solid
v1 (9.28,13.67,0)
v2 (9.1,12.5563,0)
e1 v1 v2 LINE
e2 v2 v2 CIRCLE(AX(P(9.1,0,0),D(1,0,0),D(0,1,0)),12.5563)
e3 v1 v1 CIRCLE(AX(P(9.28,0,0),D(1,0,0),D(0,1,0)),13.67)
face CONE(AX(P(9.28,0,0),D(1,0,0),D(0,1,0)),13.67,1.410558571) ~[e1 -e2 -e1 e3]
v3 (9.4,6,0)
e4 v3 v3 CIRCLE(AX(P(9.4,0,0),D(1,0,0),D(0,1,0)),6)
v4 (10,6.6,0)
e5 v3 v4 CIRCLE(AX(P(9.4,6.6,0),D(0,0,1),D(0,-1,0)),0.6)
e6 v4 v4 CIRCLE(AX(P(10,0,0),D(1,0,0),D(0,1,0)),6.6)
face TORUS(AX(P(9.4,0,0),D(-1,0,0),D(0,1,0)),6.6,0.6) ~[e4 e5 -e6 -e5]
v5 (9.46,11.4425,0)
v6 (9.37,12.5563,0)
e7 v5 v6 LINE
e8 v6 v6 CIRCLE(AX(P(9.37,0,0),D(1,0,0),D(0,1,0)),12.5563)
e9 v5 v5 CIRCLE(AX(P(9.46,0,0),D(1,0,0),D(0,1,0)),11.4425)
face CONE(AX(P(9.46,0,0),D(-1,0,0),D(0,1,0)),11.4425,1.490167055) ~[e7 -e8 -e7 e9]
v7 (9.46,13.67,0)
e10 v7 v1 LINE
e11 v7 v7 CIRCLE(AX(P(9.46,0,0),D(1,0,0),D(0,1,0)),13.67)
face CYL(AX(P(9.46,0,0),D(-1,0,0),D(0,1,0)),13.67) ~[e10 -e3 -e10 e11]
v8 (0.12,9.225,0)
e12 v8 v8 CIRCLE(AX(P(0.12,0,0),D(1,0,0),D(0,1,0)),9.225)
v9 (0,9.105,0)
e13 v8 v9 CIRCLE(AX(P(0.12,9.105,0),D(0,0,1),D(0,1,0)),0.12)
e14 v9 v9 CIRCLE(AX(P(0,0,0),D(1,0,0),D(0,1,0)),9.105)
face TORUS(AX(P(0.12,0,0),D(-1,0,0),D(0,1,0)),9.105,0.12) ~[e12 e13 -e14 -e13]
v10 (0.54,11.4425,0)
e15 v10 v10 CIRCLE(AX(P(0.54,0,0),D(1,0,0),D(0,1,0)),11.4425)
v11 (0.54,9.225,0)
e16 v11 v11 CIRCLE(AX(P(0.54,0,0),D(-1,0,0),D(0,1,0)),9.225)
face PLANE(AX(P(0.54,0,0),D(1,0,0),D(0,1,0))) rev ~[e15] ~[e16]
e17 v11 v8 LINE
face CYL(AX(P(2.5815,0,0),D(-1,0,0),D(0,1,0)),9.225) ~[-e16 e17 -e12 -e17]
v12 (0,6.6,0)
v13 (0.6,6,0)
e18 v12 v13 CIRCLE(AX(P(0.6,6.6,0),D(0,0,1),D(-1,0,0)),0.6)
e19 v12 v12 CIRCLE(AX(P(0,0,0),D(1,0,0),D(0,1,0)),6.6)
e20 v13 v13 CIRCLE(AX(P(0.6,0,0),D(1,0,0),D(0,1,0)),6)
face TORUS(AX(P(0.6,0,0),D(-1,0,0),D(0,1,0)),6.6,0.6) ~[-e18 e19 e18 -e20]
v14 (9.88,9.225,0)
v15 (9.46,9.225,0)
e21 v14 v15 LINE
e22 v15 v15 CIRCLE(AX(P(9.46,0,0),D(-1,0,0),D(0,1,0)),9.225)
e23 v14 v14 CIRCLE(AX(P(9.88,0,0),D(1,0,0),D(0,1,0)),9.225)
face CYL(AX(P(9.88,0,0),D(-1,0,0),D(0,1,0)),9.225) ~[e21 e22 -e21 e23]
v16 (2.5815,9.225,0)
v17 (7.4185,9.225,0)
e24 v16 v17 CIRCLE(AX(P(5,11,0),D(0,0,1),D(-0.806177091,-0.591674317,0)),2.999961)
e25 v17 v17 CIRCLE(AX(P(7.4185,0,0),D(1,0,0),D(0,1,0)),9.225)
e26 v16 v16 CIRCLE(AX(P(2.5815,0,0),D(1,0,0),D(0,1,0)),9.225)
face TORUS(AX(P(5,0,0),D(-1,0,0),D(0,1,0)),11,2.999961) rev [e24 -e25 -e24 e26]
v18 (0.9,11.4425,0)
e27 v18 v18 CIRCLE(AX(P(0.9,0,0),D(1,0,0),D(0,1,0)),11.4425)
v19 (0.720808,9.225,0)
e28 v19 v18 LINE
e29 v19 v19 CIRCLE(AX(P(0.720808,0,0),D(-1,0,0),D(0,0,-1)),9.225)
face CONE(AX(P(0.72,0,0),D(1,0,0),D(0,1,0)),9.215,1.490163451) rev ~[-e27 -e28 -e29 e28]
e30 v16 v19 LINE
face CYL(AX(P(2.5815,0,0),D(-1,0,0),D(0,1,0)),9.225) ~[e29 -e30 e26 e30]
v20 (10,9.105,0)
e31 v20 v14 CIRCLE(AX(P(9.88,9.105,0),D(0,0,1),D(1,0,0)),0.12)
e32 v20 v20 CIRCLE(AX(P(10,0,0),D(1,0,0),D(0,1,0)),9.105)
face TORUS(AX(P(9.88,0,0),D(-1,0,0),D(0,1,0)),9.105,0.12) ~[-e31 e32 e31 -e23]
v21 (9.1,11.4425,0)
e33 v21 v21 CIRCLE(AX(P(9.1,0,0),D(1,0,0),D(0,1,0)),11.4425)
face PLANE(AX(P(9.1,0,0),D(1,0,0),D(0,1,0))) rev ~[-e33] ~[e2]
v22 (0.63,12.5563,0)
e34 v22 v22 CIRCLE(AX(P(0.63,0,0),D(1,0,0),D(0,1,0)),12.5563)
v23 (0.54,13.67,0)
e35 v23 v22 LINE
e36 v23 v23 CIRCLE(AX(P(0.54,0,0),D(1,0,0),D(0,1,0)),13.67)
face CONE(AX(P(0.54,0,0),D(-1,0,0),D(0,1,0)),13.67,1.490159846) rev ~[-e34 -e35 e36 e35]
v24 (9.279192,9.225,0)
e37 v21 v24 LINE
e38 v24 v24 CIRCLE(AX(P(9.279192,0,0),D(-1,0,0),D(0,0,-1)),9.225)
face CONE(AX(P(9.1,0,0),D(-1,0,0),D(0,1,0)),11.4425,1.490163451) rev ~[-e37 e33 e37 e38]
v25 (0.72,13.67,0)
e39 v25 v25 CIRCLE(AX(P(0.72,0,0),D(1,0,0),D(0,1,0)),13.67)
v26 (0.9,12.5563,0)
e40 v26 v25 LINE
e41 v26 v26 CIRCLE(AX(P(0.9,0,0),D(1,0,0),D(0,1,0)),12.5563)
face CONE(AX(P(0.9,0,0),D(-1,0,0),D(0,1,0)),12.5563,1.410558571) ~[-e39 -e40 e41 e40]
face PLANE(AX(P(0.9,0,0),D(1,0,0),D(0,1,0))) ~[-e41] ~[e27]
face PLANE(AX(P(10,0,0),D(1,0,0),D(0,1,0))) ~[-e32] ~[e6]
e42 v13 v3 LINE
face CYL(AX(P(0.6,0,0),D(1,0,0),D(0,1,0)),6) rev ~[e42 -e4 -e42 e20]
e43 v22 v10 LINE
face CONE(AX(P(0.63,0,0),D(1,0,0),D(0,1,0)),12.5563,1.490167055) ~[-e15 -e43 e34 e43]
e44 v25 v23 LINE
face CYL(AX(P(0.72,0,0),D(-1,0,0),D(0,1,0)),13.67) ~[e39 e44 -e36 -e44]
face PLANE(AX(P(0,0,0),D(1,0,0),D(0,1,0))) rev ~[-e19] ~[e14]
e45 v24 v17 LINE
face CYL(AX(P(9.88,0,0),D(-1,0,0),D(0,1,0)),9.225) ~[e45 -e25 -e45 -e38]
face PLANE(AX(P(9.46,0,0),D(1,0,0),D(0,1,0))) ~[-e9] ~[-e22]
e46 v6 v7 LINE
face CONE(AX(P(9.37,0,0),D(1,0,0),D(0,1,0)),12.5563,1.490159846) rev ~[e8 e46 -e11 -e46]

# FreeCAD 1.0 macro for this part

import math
import FreeCAD as App
import Part
import Sketcher
from FreeCAD import Vector
Q = App.Units.Quantity

doc = App.newDocument("Part")
params = doc.addObject("Spreadsheet::Sheet", "Params")
for row, (alias, value) in enumerate([
    ("sketch1_radius", "3 mm"),
    ("sketch1_radius2", "0.6 mm"),
    ("sketch1_radius3", "0.12 mm"),
    ("sketch1_width", "8.8 mm"),
    ("revolution_angle", "360 deg"),
    ("sketch2_width", "0.18 mm"),
    ("revolution2_angle", "360 deg"),
    ("sketch3_width", "0.18 mm"),
    ("revolution3_angle", "360 deg"),
], start=1):
    params.set(f"A{row}", alias)
    params.set(f"B{row}", "=" + value)
    params.setAlias(f"B{row}", alias)

body = doc.addObject("PartDesign::Body", "Body")

# Sketch on XY plane
sketch1 = body.newObject("Sketcher::SketchObject", "Sketch")
sketch1.AttachmentSupport = (doc.getObject("XY_Plane"), [""])
sketch1.MapMode = "FlatFace"
sketch1.addGeometry(Part.ArcOfCircle(Part.Circle(Vector(0.12, 9.11, 0), Vector(0, 0, 1), 0.12), math.radians(90), math.radians(180)), False)
sketch1.addGeometry(Part.LineSegment(Vector(0, 9.11, 0), Vector(0, 6.6, 0)), False)
sketch1.addGeometry(Part.ArcOfCircle(Part.Circle(Vector(0.6, 6.6, 0), Vector(0, 0, 1), 0.6), math.radians(180), math.radians(270)), False)
sketch1.addGeometry(Part.LineSegment(Vector(0.6, 6, 0), Vector(9.4, 6, 0)), False)
sketch1.addGeometry(Part.ArcOfCircle(Part.Circle(Vector(9.4, 6.6, 0), Vector(0, 0, 1), 0.6), math.radians(-90), math.radians(0)), False)
sketch1.addGeometry(Part.LineSegment(Vector(10, 6.6, 0), Vector(10, 9.11, 0)), False)
sketch1.addGeometry(Part.ArcOfCircle(Part.Circle(Vector(9.88, 9.11, 0), Vector(0, 0, 1), 0.12), math.radians(0), math.radians(90)), False)
sketch1.addGeometry(Part.LineSegment(Vector(9.88, 9.22, 0), Vector(7.42, 9.22, 0)), False)
sketch1.addGeometry(Part.ArcOfCircle(Part.Circle(Vector(5, 11, 0), Vector(0, 0, 1), 3), math.radians(-144), math.radians(-36)), False)
sketch1.addGeometry(Part.LineSegment(Vector(2.58, 9.22, 0), Vector(0.12, 9.22, 0)), False)
sketch1.addConstraint(Sketcher.Constraint("Tangent", 0, 2, 1, 1))
sketch1.addConstraint(Sketcher.Constraint("Tangent", 1, 2, 2, 1))
sketch1.addConstraint(Sketcher.Constraint("Tangent", 2, 2, 3, 1))
sketch1.addConstraint(Sketcher.Constraint("Tangent", 3, 2, 4, 1))
sketch1.addConstraint(Sketcher.Constraint("Tangent", 4, 2, 5, 1))
sketch1.addConstraint(Sketcher.Constraint("Tangent", 5, 2, 6, 1))
sketch1.addConstraint(Sketcher.Constraint("Tangent", 6, 2, 7, 1))
sketch1.addConstraint(Sketcher.Constraint("Coincident", 7, 2, 8, 2))
sketch1.addConstraint(Sketcher.Constraint("Coincident", 8, 1, 9, 1))
sketch1.addConstraint(Sketcher.Constraint("Tangent", 9, 2, 0, 1))
sketch1.addConstraint(Sketcher.Constraint("Vertical", 1))
sketch1.addConstraint(Sketcher.Constraint("Horizontal", 3))
sketch1.addConstraint(Sketcher.Constraint("Vertical", 5))
sketch1.addConstraint(Sketcher.Constraint("Horizontal", 7))
sketch1.addConstraint(Sketcher.Constraint("Horizontal", 9))
sketch1.addConstraint(Sketcher.Constraint("Equal", 2, 4))
sketch1.addConstraint(Sketcher.Constraint("Equal", 0, 6))
sketch1.addConstraint(Sketcher.Constraint("PointOnObject", 0, 2, -2))
sketch1.addConstraint(Sketcher.Constraint("Horizontal", 0, 3, 6, 3))
sketch1.addConstraint(Sketcher.Constraint("Equal", 7, 9))
sketch1.addConstraint(Sketcher.Constraint("Radius", 8, 3.0))
sketch1.addConstraint(Sketcher.Constraint("Radius", 2, 0.6))
sketch1.addConstraint(Sketcher.Constraint("Radius", 0, 0.12))
sketch1.addConstraint(Sketcher.Constraint("DistanceX", 3, 1, 3, 2, 8.8))
sketch1.addConstraint(Sketcher.Constraint("DistanceY", -1, 1, 8, 3, 11.0))
sketch1.addConstraint(Sketcher.Constraint("DistanceY", -1, 1, 2, 2, 6.0))
sketch1.addConstraint(Sketcher.Constraint("DistanceY", 1, 2, 1, 1, 2.505))
sketch1.setExpression("Constraints[20]", "Params.sketch1_radius")
sketch1.setExpression("Constraints[21]", "Params.sketch1_radius2")
sketch1.setExpression("Constraints[22]", "Params.sketch1_radius3")
sketch1.setExpression("Constraints[23]", "Params.sketch1_width")
revolution = body.newObject("PartDesign::Revolution", "Revolution")
revolution.Profile = sketch1
revolution.ReferenceAxis = (sketch1, ["H_Axis"])
revolution.setExpression("Angle", "Params.revolution_angle")

# Sketch on XY plane
sketch2 = body.newObject("Sketcher::SketchObject", "Sketch001")
sketch2.AttachmentSupport = (doc.getObject("XY_Plane"), [""])
sketch2.MapMode = "FlatFace"
sketch2.addGeometry(Part.LineSegment(Vector(0.72, 13.67, 0), Vector(0.54, 13.67, 0)), False)
sketch2.addGeometry(Part.LineSegment(Vector(0.54, 13.67, 0), Vector(0.63, 12.56, 0)), False)
sketch2.addGeometry(Part.LineSegment(Vector(0.63, 12.56, 0), Vector(0.54, 11.44, 0)), False)
sketch2.addGeometry(Part.LineSegment(Vector(0.54, 11.44, 0), Vector(0.54, 9.21, 0)), False)
sketch2.addGeometry(Part.LineSegment(Vector(0.54, 9.21, 0), Vector(0.72, 9.21, 0)), False)
sketch2.addGeometry(Part.LineSegment(Vector(0.72, 9.21, 0), Vector(0.9, 11.44, 0)), False)
sketch2.addGeometry(Part.LineSegment(Vector(0.9, 11.44, 0), Vector(0.9, 12.56, 0)), False)
sketch2.addGeometry(Part.LineSegment(Vector(0.9, 12.56, 0), Vector(0.72, 13.67, 0)), False)
sketch2.addConstraint(Sketcher.Constraint("Coincident", 0, 2, 1, 1))
sketch2.addConstraint(Sketcher.Constraint("Coincident", 1, 2, 2, 1))
sketch2.addConstraint(Sketcher.Constraint("Coincident", 2, 2, 3, 1))
sketch2.addConstraint(Sketcher.Constraint("Coincident", 3, 2, 4, 1))
sketch2.addConstraint(Sketcher.Constraint("Coincident", 4, 2, 5, 1))
sketch2.addConstraint(Sketcher.Constraint("Coincident", 5, 2, 6, 1))
sketch2.addConstraint(Sketcher.Constraint("Coincident", 6, 2, 7, 1))
sketch2.addConstraint(Sketcher.Constraint("Coincident", 7, 2, 0, 1))
sketch2.addConstraint(Sketcher.Constraint("Horizontal", 0))
sketch2.addConstraint(Sketcher.Constraint("Vertical", 3))
sketch2.addConstraint(Sketcher.Constraint("Horizontal", 4))
sketch2.addConstraint(Sketcher.Constraint("Vertical", 6))
sketch2.addConstraint(Sketcher.Constraint("Parallel", 2, 5))
sketch2.addConstraint(Sketcher.Constraint("Horizontal", 2, 2, 5, 2))
sketch2.addConstraint(Sketcher.Constraint("Horizontal", 1, 2, 6, 2))
sketch2.addConstraint(Sketcher.Constraint("Vertical", 0, 2, 2, 2))
sketch2.addConstraint(Sketcher.Constraint("Vertical", 4, 2, 7, 2))
sketch2.addConstraint(Sketcher.Constraint("Equal", 1, 2))
sketch2.addConstraint(Sketcher.Constraint("DistanceX", 0, 2, 0, 1, 0.18))
sketch2.addConstraint(Sketcher.Constraint("DistanceX", -1, 1, 5, 2, 0.9))
sketch2.addConstraint(Sketcher.Constraint("Angle", 1, Q("-85.3799 deg")))
sketch2.addConstraint(Sketcher.Constraint("Angle", 7, Q("99.181 deg")))
sketch2.addConstraint(Sketcher.Constraint("DistanceX", -1, 1, 0, 2, 0.54))
sketch2.addConstraint(Sketcher.Constraint("DistanceY", -1, 1, 0, 2, 13.67))
sketch2.setExpression("Constraints[18]", "Params.sketch2_width")
revolution2 = body.newObject("PartDesign::Revolution", "Revolution001")
revolution2.Profile = sketch2
revolution2.ReferenceAxis = (sketch2, ["H_Axis"])
revolution2.setExpression("Angle", "Params.revolution2_angle")

# Sketch on XY plane
sketch3 = body.newObject("Sketcher::SketchObject", "Sketch002")
sketch3.AttachmentSupport = (doc.getObject("XY_Plane"), [""])
sketch3.MapMode = "FlatFace"
sketch3.addGeometry(Part.LineSegment(Vector(9.28, 13.67, 0), Vector(9.1, 12.56, 0)), False)
sketch3.addGeometry(Part.LineSegment(Vector(9.1, 12.56, 0), Vector(9.1, 11.44, 0)), False)
sketch3.addGeometry(Part.LineSegment(Vector(9.1, 11.44, 0), Vector(9.28, 9.21, 0)), False)
sketch3.addGeometry(Part.LineSegment(Vector(9.28, 9.21, 0), Vector(9.46, 9.21, 0)), False)
sketch3.addGeometry(Part.LineSegment(Vector(9.46, 9.21, 0), Vector(9.46, 11.44, 0)), False)
sketch3.addGeometry(Part.LineSegment(Vector(9.46, 11.44, 0), Vector(9.37, 12.56, 0)), False)
sketch3.addGeometry(Part.LineSegment(Vector(9.37, 12.56, 0), Vector(9.46, 13.67, 0)), False)
sketch3.addGeometry(Part.LineSegment(Vector(9.46, 13.67, 0), Vector(9.28, 13.67, 0)), False)
sketch3.addConstraint(Sketcher.Constraint("Coincident", 0, 2, 1, 1))
sketch3.addConstraint(Sketcher.Constraint("Coincident", 1, 2, 2, 1))
sketch3.addConstraint(Sketcher.Constraint("Coincident", 2, 2, 3, 1))
sketch3.addConstraint(Sketcher.Constraint("Coincident", 3, 2, 4, 1))
sketch3.addConstraint(Sketcher.Constraint("Coincident", 4, 2, 5, 1))
sketch3.addConstraint(Sketcher.Constraint("Coincident", 5, 2, 6, 1))
sketch3.addConstraint(Sketcher.Constraint("Coincident", 6, 2, 7, 1))
sketch3.addConstraint(Sketcher.Constraint("Coincident", 7, 2, 0, 1))
sketch3.addConstraint(Sketcher.Constraint("Vertical", 1))
sketch3.addConstraint(Sketcher.Constraint("Horizontal", 3))
sketch3.addConstraint(Sketcher.Constraint("Vertical", 4))
sketch3.addConstraint(Sketcher.Constraint("Horizontal", 7))
sketch3.addConstraint(Sketcher.Constraint("Parallel", 2, 5))
sketch3.addConstraint(Sketcher.Constraint("Horizontal", 1, 2, 4, 2))
sketch3.addConstraint(Sketcher.Constraint("Horizontal", 0, 2, 5, 2))
sketch3.addConstraint(Sketcher.Constraint("Vertical", 4, 2, 6, 2))
sketch3.addConstraint(Sketcher.Constraint("Vertical", 2, 2, 7, 2))
sketch3.addConstraint(Sketcher.Constraint("Equal", 5, 6))
sketch3.addConstraint(Sketcher.Constraint("DistanceX", 3, 1, 3, 2, 0.18))
sketch3.addConstraint(Sketcher.Constraint("DistanceX", -1, 1, 0, 2, 9.1))
sketch3.addConstraint(Sketcher.Constraint("Angle", 0, Q("-99.181 deg")))
sketch3.addConstraint(Sketcher.Constraint("Angle", 2, Q("-85.38 deg")))
sketch3.addConstraint(Sketcher.Constraint("DistanceX", -1, 1, 2, 2, 9.28))
sketch3.addConstraint(Sketcher.Constraint("DistanceY", -1, 1, 6, 2, 13.67))
sketch3.setExpression("Constraints[18]", "Params.sketch3_width")
revolution3 = body.newObject("PartDesign::Revolution", "Revolution002")
revolution3.Profile = sketch3
revolution3.ReferenceAxis = (sketch3, ["H_Axis"])
revolution3.setExpression("Angle", "Params.revolution3_angle")

doc.recompute()
